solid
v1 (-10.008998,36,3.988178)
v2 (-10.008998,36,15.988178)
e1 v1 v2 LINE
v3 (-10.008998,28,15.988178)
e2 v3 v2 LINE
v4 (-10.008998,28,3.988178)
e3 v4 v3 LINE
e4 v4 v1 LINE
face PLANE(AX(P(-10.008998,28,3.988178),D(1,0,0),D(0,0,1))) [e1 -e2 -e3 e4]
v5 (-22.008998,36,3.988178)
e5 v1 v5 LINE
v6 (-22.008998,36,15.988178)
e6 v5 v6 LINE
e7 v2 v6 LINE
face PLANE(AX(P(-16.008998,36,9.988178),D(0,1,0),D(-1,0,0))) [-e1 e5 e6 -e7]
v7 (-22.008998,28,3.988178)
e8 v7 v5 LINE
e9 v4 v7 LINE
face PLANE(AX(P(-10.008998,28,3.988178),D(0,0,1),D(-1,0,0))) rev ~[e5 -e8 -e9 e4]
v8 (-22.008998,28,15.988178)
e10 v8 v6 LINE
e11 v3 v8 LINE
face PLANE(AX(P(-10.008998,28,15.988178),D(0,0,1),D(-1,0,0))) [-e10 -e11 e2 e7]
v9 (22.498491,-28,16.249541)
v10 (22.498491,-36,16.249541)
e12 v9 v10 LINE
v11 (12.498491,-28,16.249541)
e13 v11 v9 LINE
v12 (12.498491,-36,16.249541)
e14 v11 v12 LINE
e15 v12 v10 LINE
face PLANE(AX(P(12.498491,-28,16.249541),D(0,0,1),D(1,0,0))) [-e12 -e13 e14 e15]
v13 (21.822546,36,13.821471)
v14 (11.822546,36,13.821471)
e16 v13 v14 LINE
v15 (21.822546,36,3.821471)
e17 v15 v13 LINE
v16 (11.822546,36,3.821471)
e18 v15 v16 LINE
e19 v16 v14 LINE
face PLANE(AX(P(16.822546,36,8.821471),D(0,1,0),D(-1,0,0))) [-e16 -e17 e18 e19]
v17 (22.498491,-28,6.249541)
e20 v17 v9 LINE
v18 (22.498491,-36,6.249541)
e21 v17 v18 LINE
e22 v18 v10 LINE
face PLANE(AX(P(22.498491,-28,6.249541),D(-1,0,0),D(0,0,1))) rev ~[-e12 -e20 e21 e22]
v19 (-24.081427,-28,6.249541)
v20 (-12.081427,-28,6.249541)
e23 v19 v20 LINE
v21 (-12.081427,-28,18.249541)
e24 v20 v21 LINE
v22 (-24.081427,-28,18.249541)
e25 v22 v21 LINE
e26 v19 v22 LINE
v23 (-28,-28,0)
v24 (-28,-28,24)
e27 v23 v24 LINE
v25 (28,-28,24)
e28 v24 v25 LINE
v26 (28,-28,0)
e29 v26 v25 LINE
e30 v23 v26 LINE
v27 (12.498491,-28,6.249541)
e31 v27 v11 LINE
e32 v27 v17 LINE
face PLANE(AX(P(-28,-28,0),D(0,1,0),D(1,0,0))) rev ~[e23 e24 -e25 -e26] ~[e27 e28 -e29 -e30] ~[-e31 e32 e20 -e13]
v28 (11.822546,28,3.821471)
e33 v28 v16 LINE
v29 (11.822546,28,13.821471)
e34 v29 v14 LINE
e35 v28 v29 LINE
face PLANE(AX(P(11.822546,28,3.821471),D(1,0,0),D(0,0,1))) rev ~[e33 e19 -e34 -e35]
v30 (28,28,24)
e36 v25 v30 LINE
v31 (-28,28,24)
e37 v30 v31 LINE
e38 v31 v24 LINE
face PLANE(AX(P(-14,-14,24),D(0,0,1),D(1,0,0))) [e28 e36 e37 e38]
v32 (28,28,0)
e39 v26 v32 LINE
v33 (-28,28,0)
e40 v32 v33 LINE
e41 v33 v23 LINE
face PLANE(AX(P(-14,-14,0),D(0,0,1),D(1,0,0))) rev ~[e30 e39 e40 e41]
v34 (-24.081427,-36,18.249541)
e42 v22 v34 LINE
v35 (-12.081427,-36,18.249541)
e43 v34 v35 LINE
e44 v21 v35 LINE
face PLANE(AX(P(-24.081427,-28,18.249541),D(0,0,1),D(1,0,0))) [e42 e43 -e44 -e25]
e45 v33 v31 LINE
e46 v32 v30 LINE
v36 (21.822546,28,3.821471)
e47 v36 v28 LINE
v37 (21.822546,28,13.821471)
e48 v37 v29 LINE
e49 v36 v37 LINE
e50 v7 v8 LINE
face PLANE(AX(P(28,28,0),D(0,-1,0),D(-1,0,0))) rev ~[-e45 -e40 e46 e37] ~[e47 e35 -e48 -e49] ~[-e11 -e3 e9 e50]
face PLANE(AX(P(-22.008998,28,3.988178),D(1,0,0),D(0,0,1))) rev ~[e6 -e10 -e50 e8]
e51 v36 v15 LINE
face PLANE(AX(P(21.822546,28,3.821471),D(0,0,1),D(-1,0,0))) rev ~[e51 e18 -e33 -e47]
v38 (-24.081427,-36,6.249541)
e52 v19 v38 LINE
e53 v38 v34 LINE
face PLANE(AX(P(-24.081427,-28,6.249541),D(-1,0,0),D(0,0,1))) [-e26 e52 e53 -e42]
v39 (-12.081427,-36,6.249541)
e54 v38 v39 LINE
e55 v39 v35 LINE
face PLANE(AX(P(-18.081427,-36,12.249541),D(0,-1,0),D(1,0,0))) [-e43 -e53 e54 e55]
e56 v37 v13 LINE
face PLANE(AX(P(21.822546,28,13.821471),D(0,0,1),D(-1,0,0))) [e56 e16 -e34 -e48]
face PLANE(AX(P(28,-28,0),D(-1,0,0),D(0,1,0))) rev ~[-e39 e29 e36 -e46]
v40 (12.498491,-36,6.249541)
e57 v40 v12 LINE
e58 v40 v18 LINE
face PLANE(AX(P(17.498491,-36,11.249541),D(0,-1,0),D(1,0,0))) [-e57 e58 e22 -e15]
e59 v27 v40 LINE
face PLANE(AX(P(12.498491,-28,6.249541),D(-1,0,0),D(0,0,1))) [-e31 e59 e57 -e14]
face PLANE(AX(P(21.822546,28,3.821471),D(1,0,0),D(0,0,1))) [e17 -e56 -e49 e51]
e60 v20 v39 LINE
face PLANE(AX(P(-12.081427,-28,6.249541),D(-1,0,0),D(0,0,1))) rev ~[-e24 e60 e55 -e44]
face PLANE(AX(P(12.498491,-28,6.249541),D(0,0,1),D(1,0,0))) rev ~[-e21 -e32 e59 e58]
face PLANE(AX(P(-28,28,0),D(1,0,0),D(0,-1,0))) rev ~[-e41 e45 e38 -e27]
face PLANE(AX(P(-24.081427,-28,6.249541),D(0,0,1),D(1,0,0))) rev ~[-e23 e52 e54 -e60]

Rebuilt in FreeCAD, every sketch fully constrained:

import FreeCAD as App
import Part
import Sketcher
from FreeCAD import Vector
Q = App.Units.Quantity

doc = App.newDocument("Part")
body = doc.addObject("PartDesign::Body", "Body")

# Sketch on XY plane
sketch1 = body.newObject("Sketcher::SketchObject", "Sketch")
sketch1.AttachmentSupport = (doc.getObject("XY_Plane"), [""])
sketch1.MapMode = "FlatFace"
sketch1.addGeometry(Part.LineSegment(Vector(-28, -28, 0), Vector(28, -28, 0)), False)
sketch1.addGeometry(Part.LineSegment(Vector(28, -28, 0), Vector(28, 28, 0)), False)
sketch1.addGeometry(Part.LineSegment(Vector(28, 28, 0), Vector(-28, 28, 0)), False)
sketch1.addGeometry(Part.LineSegment(Vector(-28, 28, 0), Vector(-28, -28, 0)), False)
sketch1.addConstraint(Sketcher.Constraint("Coincident", 0, 2, 1, 1))
sketch1.addConstraint(Sketcher.Constraint("Coincident", 1, 2, 2, 1))
sketch1.addConstraint(Sketcher.Constraint("Coincident", 2, 2, 3, 1))
sketch1.addConstraint(Sketcher.Constraint("Coincident", 3, 2, 0, 1))
sketch1.addConstraint(Sketcher.Constraint("Horizontal", 0))
sketch1.addConstraint(Sketcher.Constraint("Vertical", 1))
sketch1.addConstraint(Sketcher.Constraint("Horizontal", 2))
sketch1.addConstraint(Sketcher.Constraint("Vertical", 3))
sketch1.addConstraint(Sketcher.Constraint("Symmetric", 0, 2, 2, 2, -1, 1))
sketch1.addConstraint(Sketcher.Constraint("Equal", 2, 1))
sketch1.addConstraint(Sketcher.Constraint("DistanceX", 0, 1, 0, 2, Q("56 mm")))
pad1 = body.newObject("PartDesign::Pad", "Pad")
pad1.Profile = sketch1
pad1.Length = 24

# Sketch on XZ plane
sketch2 = body.newObject("Sketcher::SketchObject", "Sketch001")
sketch2.AttachmentSupport = (doc.getObject("XZ_Plane"), [""])
sketch2.MapMode = "FlatFace"
sketch2.AttachmentOffset = App.Placement(Vector(0, 0, -28), App.Rotation())
sketch2.addGeometry(Part.LineSegment(Vector(21.822546, 13.821471, 0), Vector(21.822546, 3.821471, 0)), False)
sketch2.addGeometry(Part.LineSegment(Vector(21.822546, 3.821471, 0), Vector(11.822546, 3.821471, 0)), False)
sketch2.addGeometry(Part.LineSegment(Vector(11.822546, 3.821471, 0), Vector(11.822546, 13.821471, 0)), False)
sketch2.addGeometry(Part.LineSegment(Vector(11.822546, 13.821471, 0), Vector(21.822546, 13.821471, 0)), False)
sketch2.addGeometry(Part.LineSegment(Vector(-10.008998, 15.988178, 0), Vector(-10.008998, 3.988178, 0)), False)
sketch2.addGeometry(Part.LineSegment(Vector(-10.008998, 3.988178, 0), Vector(-22.008998, 3.988178, 0)), False)
sketch2.addGeometry(Part.LineSegment(Vector(-22.008998, 3.988178, 0), Vector(-22.008998, 15.988178, 0)), False)
sketch2.addGeometry(Part.LineSegment(Vector(-22.008998, 15.988178, 0), Vector(-10.008998, 15.988178, 0)), False)
sketch2.addConstraint(Sketcher.Constraint("Coincident", 0, 2, 1, 1))
sketch2.addConstraint(Sketcher.Constraint("Coincident", 1, 2, 2, 1))
sketch2.addConstraint(Sketcher.Constraint("Coincident", 2, 2, 3, 1))
sketch2.addConstraint(Sketcher.Constraint("Coincident", 3, 2, 0, 1))
sketch2.addConstraint(Sketcher.Constraint("Coincident", 4, 2, 5, 1))
sketch2.addConstraint(Sketcher.Constraint("Coincident", 5, 2, 6, 1))
sketch2.addConstraint(Sketcher.Constraint("Coincident", 6, 2, 7, 1))
sketch2.addConstraint(Sketcher.Constraint("Coincident", 7, 2, 4, 1))
sketch2.addConstraint(Sketcher.Constraint("Vertical", 0))
sketch2.addConstraint(Sketcher.Constraint("Horizontal", 1))
sketch2.addConstraint(Sketcher.Constraint("Vertical", 2))
sketch2.addConstraint(Sketcher.Constraint("Horizontal", 3))
sketch2.addConstraint(Sketcher.Constraint("Vertical", 4))
sketch2.addConstraint(Sketcher.Constraint("Horizontal", 5))
sketch2.addConstraint(Sketcher.Constraint("Vertical", 6))
sketch2.addConstraint(Sketcher.Constraint("Horizontal", 7))
sketch2.addConstraint(Sketcher.Constraint("Equal", 3, 0))
sketch2.addConstraint(Sketcher.Constraint("Equal", 7, 4))
sketch2.addConstraint(Sketcher.Constraint("DistanceX", 1, 2, 1, 1, Q("10 mm")))
sketch2.addConstraint(Sketcher.Constraint("DistanceX", 5, 2, 5, 1, Q("12 mm")))
sketch2.addConstraint(Sketcher.Constraint("DistanceY", -1, 1, 0, 2, Q("3.821471 mm")))
sketch2.addConstraint(Sketcher.Constraint("DistanceY", -1, 1, 4, 2, Q("3.988178 mm")))
sketch2.addConstraint(Sketcher.Constraint("DistanceX", -1, 1, 0, 2, Q("21.822546 mm")))
sketch2.addConstraint(Sketcher.Constraint("DistanceX", 4, 2, -1, 1, Q("10.008998 mm")))
pad2 = body.newObject("PartDesign::Pad", "Pad001")
pad2.Profile = sketch2
pad2.Length = 8
pad2.Reversed = True

# Sketch on XZ plane
sketch3 = body.newObject("Sketcher::SketchObject", "Sketch002")
sketch3.AttachmentSupport = (doc.getObject("XZ_Plane"), [""])
sketch3.MapMode = "FlatFace"
sketch3.AttachmentOffset = App.Placement(Vector(0, 0, 28), App.Rotation())
sketch3.addGeometry(Part.LineSegment(Vector(-24.081427, 18.249541, 0), Vector(-24.081427, 6.249541, 0)), False)
sketch3.addGeometry(Part.LineSegment(Vector(-24.081427, 6.249541, 0), Vector(-12.081427, 6.249541, 0)), False)
sketch3.addGeometry(Part.LineSegment(Vector(-12.081427, 6.249541, 0), Vector(-12.081427, 18.249541, 0)), False)
sketch3.addGeometry(Part.LineSegment(Vector(-12.081427, 18.249541, 0), Vector(-24.081427, 18.249541, 0)), False)
sketch3.addGeometry(Part.LineSegment(Vector(12.498491, 16.249541, 0), Vector(12.498491, 6.249541, 0)), False)
sketch3.addGeometry(Part.LineSegment(Vector(12.498491, 6.249541, 0), Vector(22.498491, 6.249541, 0)), False)
sketch3.addGeometry(Part.LineSegment(Vector(22.498491, 6.249541, 0), Vector(22.498491, 16.249541, 0)), False)
sketch3.addGeometry(Part.LineSegment(Vector(22.498491, 16.249541, 0), Vector(12.498491, 16.249541, 0)), False)
sketch3.addConstraint(Sketcher.Constraint("Coincident", 0, 2, 1, 1))
sketch3.addConstraint(Sketcher.Constraint("Coincident", 1, 2, 2, 1))
sketch3.addConstraint(Sketcher.Constraint("Coincident", 2, 2, 3, 1))
sketch3.addConstraint(Sketcher.Constraint("Coincident", 3, 2, 0, 1))
sketch3.addConstraint(Sketcher.Constraint("Coincident", 4, 2, 5, 1))
sketch3.addConstraint(Sketcher.Constraint("Coincident", 5, 2, 6, 1))
sketch3.addConstraint(Sketcher.Constraint("Coincident", 6, 2, 7, 1))
sketch3.addConstraint(Sketcher.Constraint("Coincident", 7, 2, 4, 1))
sketch3.addConstraint(Sketcher.Constraint("Vertical", 0))
sketch3.addConstraint(Sketcher.Constraint("Horizontal", 1))
sketch3.addConstraint(Sketcher.Constraint("Vertical", 2))
sketch3.addConstraint(Sketcher.Constraint("Horizontal", 3))
sketch3.addConstraint(Sketcher.Constraint("Vertical", 4))
sketch3.addConstraint(Sketcher.Constraint("Horizontal", 5))
sketch3.addConstraint(Sketcher.Constraint("Vertical", 6))
sketch3.addConstraint(Sketcher.Constraint("Horizontal", 7))
sketch3.addConstraint(Sketcher.Constraint("Horizontal", 1, 2, 4, 2))
sketch3.addConstraint(Sketcher.Constraint("Equal", 3, 0))
sketch3.addConstraint(Sketcher.Constraint("Equal", 7, 4))
sketch3.addConstraint(Sketcher.Constraint("DistanceX", 1, 1, 1, 2, Q("12 mm")))
sketch3.addConstraint(Sketcher.Constraint("DistanceX", 5, 1, 5, 2, Q("10 mm")))
sketch3.addConstraint(Sketcher.Constraint("DistanceY", -1, 1, 0, 2, Q("6.249541 mm")))
sketch3.addConstraint(Sketcher.Constraint("DistanceX", -1, 1, 4, 2, Q("12.498491 mm")))
sketch3.addConstraint(Sketcher.Constraint("DistanceX", 0, 2, 5, 2, Q("46.579918 mm")))
pad3 = body.newObject("PartDesign::Pad", "Pad002")
pad3.Profile = sketch3
pad3.Length = 8

doc.recompute()
